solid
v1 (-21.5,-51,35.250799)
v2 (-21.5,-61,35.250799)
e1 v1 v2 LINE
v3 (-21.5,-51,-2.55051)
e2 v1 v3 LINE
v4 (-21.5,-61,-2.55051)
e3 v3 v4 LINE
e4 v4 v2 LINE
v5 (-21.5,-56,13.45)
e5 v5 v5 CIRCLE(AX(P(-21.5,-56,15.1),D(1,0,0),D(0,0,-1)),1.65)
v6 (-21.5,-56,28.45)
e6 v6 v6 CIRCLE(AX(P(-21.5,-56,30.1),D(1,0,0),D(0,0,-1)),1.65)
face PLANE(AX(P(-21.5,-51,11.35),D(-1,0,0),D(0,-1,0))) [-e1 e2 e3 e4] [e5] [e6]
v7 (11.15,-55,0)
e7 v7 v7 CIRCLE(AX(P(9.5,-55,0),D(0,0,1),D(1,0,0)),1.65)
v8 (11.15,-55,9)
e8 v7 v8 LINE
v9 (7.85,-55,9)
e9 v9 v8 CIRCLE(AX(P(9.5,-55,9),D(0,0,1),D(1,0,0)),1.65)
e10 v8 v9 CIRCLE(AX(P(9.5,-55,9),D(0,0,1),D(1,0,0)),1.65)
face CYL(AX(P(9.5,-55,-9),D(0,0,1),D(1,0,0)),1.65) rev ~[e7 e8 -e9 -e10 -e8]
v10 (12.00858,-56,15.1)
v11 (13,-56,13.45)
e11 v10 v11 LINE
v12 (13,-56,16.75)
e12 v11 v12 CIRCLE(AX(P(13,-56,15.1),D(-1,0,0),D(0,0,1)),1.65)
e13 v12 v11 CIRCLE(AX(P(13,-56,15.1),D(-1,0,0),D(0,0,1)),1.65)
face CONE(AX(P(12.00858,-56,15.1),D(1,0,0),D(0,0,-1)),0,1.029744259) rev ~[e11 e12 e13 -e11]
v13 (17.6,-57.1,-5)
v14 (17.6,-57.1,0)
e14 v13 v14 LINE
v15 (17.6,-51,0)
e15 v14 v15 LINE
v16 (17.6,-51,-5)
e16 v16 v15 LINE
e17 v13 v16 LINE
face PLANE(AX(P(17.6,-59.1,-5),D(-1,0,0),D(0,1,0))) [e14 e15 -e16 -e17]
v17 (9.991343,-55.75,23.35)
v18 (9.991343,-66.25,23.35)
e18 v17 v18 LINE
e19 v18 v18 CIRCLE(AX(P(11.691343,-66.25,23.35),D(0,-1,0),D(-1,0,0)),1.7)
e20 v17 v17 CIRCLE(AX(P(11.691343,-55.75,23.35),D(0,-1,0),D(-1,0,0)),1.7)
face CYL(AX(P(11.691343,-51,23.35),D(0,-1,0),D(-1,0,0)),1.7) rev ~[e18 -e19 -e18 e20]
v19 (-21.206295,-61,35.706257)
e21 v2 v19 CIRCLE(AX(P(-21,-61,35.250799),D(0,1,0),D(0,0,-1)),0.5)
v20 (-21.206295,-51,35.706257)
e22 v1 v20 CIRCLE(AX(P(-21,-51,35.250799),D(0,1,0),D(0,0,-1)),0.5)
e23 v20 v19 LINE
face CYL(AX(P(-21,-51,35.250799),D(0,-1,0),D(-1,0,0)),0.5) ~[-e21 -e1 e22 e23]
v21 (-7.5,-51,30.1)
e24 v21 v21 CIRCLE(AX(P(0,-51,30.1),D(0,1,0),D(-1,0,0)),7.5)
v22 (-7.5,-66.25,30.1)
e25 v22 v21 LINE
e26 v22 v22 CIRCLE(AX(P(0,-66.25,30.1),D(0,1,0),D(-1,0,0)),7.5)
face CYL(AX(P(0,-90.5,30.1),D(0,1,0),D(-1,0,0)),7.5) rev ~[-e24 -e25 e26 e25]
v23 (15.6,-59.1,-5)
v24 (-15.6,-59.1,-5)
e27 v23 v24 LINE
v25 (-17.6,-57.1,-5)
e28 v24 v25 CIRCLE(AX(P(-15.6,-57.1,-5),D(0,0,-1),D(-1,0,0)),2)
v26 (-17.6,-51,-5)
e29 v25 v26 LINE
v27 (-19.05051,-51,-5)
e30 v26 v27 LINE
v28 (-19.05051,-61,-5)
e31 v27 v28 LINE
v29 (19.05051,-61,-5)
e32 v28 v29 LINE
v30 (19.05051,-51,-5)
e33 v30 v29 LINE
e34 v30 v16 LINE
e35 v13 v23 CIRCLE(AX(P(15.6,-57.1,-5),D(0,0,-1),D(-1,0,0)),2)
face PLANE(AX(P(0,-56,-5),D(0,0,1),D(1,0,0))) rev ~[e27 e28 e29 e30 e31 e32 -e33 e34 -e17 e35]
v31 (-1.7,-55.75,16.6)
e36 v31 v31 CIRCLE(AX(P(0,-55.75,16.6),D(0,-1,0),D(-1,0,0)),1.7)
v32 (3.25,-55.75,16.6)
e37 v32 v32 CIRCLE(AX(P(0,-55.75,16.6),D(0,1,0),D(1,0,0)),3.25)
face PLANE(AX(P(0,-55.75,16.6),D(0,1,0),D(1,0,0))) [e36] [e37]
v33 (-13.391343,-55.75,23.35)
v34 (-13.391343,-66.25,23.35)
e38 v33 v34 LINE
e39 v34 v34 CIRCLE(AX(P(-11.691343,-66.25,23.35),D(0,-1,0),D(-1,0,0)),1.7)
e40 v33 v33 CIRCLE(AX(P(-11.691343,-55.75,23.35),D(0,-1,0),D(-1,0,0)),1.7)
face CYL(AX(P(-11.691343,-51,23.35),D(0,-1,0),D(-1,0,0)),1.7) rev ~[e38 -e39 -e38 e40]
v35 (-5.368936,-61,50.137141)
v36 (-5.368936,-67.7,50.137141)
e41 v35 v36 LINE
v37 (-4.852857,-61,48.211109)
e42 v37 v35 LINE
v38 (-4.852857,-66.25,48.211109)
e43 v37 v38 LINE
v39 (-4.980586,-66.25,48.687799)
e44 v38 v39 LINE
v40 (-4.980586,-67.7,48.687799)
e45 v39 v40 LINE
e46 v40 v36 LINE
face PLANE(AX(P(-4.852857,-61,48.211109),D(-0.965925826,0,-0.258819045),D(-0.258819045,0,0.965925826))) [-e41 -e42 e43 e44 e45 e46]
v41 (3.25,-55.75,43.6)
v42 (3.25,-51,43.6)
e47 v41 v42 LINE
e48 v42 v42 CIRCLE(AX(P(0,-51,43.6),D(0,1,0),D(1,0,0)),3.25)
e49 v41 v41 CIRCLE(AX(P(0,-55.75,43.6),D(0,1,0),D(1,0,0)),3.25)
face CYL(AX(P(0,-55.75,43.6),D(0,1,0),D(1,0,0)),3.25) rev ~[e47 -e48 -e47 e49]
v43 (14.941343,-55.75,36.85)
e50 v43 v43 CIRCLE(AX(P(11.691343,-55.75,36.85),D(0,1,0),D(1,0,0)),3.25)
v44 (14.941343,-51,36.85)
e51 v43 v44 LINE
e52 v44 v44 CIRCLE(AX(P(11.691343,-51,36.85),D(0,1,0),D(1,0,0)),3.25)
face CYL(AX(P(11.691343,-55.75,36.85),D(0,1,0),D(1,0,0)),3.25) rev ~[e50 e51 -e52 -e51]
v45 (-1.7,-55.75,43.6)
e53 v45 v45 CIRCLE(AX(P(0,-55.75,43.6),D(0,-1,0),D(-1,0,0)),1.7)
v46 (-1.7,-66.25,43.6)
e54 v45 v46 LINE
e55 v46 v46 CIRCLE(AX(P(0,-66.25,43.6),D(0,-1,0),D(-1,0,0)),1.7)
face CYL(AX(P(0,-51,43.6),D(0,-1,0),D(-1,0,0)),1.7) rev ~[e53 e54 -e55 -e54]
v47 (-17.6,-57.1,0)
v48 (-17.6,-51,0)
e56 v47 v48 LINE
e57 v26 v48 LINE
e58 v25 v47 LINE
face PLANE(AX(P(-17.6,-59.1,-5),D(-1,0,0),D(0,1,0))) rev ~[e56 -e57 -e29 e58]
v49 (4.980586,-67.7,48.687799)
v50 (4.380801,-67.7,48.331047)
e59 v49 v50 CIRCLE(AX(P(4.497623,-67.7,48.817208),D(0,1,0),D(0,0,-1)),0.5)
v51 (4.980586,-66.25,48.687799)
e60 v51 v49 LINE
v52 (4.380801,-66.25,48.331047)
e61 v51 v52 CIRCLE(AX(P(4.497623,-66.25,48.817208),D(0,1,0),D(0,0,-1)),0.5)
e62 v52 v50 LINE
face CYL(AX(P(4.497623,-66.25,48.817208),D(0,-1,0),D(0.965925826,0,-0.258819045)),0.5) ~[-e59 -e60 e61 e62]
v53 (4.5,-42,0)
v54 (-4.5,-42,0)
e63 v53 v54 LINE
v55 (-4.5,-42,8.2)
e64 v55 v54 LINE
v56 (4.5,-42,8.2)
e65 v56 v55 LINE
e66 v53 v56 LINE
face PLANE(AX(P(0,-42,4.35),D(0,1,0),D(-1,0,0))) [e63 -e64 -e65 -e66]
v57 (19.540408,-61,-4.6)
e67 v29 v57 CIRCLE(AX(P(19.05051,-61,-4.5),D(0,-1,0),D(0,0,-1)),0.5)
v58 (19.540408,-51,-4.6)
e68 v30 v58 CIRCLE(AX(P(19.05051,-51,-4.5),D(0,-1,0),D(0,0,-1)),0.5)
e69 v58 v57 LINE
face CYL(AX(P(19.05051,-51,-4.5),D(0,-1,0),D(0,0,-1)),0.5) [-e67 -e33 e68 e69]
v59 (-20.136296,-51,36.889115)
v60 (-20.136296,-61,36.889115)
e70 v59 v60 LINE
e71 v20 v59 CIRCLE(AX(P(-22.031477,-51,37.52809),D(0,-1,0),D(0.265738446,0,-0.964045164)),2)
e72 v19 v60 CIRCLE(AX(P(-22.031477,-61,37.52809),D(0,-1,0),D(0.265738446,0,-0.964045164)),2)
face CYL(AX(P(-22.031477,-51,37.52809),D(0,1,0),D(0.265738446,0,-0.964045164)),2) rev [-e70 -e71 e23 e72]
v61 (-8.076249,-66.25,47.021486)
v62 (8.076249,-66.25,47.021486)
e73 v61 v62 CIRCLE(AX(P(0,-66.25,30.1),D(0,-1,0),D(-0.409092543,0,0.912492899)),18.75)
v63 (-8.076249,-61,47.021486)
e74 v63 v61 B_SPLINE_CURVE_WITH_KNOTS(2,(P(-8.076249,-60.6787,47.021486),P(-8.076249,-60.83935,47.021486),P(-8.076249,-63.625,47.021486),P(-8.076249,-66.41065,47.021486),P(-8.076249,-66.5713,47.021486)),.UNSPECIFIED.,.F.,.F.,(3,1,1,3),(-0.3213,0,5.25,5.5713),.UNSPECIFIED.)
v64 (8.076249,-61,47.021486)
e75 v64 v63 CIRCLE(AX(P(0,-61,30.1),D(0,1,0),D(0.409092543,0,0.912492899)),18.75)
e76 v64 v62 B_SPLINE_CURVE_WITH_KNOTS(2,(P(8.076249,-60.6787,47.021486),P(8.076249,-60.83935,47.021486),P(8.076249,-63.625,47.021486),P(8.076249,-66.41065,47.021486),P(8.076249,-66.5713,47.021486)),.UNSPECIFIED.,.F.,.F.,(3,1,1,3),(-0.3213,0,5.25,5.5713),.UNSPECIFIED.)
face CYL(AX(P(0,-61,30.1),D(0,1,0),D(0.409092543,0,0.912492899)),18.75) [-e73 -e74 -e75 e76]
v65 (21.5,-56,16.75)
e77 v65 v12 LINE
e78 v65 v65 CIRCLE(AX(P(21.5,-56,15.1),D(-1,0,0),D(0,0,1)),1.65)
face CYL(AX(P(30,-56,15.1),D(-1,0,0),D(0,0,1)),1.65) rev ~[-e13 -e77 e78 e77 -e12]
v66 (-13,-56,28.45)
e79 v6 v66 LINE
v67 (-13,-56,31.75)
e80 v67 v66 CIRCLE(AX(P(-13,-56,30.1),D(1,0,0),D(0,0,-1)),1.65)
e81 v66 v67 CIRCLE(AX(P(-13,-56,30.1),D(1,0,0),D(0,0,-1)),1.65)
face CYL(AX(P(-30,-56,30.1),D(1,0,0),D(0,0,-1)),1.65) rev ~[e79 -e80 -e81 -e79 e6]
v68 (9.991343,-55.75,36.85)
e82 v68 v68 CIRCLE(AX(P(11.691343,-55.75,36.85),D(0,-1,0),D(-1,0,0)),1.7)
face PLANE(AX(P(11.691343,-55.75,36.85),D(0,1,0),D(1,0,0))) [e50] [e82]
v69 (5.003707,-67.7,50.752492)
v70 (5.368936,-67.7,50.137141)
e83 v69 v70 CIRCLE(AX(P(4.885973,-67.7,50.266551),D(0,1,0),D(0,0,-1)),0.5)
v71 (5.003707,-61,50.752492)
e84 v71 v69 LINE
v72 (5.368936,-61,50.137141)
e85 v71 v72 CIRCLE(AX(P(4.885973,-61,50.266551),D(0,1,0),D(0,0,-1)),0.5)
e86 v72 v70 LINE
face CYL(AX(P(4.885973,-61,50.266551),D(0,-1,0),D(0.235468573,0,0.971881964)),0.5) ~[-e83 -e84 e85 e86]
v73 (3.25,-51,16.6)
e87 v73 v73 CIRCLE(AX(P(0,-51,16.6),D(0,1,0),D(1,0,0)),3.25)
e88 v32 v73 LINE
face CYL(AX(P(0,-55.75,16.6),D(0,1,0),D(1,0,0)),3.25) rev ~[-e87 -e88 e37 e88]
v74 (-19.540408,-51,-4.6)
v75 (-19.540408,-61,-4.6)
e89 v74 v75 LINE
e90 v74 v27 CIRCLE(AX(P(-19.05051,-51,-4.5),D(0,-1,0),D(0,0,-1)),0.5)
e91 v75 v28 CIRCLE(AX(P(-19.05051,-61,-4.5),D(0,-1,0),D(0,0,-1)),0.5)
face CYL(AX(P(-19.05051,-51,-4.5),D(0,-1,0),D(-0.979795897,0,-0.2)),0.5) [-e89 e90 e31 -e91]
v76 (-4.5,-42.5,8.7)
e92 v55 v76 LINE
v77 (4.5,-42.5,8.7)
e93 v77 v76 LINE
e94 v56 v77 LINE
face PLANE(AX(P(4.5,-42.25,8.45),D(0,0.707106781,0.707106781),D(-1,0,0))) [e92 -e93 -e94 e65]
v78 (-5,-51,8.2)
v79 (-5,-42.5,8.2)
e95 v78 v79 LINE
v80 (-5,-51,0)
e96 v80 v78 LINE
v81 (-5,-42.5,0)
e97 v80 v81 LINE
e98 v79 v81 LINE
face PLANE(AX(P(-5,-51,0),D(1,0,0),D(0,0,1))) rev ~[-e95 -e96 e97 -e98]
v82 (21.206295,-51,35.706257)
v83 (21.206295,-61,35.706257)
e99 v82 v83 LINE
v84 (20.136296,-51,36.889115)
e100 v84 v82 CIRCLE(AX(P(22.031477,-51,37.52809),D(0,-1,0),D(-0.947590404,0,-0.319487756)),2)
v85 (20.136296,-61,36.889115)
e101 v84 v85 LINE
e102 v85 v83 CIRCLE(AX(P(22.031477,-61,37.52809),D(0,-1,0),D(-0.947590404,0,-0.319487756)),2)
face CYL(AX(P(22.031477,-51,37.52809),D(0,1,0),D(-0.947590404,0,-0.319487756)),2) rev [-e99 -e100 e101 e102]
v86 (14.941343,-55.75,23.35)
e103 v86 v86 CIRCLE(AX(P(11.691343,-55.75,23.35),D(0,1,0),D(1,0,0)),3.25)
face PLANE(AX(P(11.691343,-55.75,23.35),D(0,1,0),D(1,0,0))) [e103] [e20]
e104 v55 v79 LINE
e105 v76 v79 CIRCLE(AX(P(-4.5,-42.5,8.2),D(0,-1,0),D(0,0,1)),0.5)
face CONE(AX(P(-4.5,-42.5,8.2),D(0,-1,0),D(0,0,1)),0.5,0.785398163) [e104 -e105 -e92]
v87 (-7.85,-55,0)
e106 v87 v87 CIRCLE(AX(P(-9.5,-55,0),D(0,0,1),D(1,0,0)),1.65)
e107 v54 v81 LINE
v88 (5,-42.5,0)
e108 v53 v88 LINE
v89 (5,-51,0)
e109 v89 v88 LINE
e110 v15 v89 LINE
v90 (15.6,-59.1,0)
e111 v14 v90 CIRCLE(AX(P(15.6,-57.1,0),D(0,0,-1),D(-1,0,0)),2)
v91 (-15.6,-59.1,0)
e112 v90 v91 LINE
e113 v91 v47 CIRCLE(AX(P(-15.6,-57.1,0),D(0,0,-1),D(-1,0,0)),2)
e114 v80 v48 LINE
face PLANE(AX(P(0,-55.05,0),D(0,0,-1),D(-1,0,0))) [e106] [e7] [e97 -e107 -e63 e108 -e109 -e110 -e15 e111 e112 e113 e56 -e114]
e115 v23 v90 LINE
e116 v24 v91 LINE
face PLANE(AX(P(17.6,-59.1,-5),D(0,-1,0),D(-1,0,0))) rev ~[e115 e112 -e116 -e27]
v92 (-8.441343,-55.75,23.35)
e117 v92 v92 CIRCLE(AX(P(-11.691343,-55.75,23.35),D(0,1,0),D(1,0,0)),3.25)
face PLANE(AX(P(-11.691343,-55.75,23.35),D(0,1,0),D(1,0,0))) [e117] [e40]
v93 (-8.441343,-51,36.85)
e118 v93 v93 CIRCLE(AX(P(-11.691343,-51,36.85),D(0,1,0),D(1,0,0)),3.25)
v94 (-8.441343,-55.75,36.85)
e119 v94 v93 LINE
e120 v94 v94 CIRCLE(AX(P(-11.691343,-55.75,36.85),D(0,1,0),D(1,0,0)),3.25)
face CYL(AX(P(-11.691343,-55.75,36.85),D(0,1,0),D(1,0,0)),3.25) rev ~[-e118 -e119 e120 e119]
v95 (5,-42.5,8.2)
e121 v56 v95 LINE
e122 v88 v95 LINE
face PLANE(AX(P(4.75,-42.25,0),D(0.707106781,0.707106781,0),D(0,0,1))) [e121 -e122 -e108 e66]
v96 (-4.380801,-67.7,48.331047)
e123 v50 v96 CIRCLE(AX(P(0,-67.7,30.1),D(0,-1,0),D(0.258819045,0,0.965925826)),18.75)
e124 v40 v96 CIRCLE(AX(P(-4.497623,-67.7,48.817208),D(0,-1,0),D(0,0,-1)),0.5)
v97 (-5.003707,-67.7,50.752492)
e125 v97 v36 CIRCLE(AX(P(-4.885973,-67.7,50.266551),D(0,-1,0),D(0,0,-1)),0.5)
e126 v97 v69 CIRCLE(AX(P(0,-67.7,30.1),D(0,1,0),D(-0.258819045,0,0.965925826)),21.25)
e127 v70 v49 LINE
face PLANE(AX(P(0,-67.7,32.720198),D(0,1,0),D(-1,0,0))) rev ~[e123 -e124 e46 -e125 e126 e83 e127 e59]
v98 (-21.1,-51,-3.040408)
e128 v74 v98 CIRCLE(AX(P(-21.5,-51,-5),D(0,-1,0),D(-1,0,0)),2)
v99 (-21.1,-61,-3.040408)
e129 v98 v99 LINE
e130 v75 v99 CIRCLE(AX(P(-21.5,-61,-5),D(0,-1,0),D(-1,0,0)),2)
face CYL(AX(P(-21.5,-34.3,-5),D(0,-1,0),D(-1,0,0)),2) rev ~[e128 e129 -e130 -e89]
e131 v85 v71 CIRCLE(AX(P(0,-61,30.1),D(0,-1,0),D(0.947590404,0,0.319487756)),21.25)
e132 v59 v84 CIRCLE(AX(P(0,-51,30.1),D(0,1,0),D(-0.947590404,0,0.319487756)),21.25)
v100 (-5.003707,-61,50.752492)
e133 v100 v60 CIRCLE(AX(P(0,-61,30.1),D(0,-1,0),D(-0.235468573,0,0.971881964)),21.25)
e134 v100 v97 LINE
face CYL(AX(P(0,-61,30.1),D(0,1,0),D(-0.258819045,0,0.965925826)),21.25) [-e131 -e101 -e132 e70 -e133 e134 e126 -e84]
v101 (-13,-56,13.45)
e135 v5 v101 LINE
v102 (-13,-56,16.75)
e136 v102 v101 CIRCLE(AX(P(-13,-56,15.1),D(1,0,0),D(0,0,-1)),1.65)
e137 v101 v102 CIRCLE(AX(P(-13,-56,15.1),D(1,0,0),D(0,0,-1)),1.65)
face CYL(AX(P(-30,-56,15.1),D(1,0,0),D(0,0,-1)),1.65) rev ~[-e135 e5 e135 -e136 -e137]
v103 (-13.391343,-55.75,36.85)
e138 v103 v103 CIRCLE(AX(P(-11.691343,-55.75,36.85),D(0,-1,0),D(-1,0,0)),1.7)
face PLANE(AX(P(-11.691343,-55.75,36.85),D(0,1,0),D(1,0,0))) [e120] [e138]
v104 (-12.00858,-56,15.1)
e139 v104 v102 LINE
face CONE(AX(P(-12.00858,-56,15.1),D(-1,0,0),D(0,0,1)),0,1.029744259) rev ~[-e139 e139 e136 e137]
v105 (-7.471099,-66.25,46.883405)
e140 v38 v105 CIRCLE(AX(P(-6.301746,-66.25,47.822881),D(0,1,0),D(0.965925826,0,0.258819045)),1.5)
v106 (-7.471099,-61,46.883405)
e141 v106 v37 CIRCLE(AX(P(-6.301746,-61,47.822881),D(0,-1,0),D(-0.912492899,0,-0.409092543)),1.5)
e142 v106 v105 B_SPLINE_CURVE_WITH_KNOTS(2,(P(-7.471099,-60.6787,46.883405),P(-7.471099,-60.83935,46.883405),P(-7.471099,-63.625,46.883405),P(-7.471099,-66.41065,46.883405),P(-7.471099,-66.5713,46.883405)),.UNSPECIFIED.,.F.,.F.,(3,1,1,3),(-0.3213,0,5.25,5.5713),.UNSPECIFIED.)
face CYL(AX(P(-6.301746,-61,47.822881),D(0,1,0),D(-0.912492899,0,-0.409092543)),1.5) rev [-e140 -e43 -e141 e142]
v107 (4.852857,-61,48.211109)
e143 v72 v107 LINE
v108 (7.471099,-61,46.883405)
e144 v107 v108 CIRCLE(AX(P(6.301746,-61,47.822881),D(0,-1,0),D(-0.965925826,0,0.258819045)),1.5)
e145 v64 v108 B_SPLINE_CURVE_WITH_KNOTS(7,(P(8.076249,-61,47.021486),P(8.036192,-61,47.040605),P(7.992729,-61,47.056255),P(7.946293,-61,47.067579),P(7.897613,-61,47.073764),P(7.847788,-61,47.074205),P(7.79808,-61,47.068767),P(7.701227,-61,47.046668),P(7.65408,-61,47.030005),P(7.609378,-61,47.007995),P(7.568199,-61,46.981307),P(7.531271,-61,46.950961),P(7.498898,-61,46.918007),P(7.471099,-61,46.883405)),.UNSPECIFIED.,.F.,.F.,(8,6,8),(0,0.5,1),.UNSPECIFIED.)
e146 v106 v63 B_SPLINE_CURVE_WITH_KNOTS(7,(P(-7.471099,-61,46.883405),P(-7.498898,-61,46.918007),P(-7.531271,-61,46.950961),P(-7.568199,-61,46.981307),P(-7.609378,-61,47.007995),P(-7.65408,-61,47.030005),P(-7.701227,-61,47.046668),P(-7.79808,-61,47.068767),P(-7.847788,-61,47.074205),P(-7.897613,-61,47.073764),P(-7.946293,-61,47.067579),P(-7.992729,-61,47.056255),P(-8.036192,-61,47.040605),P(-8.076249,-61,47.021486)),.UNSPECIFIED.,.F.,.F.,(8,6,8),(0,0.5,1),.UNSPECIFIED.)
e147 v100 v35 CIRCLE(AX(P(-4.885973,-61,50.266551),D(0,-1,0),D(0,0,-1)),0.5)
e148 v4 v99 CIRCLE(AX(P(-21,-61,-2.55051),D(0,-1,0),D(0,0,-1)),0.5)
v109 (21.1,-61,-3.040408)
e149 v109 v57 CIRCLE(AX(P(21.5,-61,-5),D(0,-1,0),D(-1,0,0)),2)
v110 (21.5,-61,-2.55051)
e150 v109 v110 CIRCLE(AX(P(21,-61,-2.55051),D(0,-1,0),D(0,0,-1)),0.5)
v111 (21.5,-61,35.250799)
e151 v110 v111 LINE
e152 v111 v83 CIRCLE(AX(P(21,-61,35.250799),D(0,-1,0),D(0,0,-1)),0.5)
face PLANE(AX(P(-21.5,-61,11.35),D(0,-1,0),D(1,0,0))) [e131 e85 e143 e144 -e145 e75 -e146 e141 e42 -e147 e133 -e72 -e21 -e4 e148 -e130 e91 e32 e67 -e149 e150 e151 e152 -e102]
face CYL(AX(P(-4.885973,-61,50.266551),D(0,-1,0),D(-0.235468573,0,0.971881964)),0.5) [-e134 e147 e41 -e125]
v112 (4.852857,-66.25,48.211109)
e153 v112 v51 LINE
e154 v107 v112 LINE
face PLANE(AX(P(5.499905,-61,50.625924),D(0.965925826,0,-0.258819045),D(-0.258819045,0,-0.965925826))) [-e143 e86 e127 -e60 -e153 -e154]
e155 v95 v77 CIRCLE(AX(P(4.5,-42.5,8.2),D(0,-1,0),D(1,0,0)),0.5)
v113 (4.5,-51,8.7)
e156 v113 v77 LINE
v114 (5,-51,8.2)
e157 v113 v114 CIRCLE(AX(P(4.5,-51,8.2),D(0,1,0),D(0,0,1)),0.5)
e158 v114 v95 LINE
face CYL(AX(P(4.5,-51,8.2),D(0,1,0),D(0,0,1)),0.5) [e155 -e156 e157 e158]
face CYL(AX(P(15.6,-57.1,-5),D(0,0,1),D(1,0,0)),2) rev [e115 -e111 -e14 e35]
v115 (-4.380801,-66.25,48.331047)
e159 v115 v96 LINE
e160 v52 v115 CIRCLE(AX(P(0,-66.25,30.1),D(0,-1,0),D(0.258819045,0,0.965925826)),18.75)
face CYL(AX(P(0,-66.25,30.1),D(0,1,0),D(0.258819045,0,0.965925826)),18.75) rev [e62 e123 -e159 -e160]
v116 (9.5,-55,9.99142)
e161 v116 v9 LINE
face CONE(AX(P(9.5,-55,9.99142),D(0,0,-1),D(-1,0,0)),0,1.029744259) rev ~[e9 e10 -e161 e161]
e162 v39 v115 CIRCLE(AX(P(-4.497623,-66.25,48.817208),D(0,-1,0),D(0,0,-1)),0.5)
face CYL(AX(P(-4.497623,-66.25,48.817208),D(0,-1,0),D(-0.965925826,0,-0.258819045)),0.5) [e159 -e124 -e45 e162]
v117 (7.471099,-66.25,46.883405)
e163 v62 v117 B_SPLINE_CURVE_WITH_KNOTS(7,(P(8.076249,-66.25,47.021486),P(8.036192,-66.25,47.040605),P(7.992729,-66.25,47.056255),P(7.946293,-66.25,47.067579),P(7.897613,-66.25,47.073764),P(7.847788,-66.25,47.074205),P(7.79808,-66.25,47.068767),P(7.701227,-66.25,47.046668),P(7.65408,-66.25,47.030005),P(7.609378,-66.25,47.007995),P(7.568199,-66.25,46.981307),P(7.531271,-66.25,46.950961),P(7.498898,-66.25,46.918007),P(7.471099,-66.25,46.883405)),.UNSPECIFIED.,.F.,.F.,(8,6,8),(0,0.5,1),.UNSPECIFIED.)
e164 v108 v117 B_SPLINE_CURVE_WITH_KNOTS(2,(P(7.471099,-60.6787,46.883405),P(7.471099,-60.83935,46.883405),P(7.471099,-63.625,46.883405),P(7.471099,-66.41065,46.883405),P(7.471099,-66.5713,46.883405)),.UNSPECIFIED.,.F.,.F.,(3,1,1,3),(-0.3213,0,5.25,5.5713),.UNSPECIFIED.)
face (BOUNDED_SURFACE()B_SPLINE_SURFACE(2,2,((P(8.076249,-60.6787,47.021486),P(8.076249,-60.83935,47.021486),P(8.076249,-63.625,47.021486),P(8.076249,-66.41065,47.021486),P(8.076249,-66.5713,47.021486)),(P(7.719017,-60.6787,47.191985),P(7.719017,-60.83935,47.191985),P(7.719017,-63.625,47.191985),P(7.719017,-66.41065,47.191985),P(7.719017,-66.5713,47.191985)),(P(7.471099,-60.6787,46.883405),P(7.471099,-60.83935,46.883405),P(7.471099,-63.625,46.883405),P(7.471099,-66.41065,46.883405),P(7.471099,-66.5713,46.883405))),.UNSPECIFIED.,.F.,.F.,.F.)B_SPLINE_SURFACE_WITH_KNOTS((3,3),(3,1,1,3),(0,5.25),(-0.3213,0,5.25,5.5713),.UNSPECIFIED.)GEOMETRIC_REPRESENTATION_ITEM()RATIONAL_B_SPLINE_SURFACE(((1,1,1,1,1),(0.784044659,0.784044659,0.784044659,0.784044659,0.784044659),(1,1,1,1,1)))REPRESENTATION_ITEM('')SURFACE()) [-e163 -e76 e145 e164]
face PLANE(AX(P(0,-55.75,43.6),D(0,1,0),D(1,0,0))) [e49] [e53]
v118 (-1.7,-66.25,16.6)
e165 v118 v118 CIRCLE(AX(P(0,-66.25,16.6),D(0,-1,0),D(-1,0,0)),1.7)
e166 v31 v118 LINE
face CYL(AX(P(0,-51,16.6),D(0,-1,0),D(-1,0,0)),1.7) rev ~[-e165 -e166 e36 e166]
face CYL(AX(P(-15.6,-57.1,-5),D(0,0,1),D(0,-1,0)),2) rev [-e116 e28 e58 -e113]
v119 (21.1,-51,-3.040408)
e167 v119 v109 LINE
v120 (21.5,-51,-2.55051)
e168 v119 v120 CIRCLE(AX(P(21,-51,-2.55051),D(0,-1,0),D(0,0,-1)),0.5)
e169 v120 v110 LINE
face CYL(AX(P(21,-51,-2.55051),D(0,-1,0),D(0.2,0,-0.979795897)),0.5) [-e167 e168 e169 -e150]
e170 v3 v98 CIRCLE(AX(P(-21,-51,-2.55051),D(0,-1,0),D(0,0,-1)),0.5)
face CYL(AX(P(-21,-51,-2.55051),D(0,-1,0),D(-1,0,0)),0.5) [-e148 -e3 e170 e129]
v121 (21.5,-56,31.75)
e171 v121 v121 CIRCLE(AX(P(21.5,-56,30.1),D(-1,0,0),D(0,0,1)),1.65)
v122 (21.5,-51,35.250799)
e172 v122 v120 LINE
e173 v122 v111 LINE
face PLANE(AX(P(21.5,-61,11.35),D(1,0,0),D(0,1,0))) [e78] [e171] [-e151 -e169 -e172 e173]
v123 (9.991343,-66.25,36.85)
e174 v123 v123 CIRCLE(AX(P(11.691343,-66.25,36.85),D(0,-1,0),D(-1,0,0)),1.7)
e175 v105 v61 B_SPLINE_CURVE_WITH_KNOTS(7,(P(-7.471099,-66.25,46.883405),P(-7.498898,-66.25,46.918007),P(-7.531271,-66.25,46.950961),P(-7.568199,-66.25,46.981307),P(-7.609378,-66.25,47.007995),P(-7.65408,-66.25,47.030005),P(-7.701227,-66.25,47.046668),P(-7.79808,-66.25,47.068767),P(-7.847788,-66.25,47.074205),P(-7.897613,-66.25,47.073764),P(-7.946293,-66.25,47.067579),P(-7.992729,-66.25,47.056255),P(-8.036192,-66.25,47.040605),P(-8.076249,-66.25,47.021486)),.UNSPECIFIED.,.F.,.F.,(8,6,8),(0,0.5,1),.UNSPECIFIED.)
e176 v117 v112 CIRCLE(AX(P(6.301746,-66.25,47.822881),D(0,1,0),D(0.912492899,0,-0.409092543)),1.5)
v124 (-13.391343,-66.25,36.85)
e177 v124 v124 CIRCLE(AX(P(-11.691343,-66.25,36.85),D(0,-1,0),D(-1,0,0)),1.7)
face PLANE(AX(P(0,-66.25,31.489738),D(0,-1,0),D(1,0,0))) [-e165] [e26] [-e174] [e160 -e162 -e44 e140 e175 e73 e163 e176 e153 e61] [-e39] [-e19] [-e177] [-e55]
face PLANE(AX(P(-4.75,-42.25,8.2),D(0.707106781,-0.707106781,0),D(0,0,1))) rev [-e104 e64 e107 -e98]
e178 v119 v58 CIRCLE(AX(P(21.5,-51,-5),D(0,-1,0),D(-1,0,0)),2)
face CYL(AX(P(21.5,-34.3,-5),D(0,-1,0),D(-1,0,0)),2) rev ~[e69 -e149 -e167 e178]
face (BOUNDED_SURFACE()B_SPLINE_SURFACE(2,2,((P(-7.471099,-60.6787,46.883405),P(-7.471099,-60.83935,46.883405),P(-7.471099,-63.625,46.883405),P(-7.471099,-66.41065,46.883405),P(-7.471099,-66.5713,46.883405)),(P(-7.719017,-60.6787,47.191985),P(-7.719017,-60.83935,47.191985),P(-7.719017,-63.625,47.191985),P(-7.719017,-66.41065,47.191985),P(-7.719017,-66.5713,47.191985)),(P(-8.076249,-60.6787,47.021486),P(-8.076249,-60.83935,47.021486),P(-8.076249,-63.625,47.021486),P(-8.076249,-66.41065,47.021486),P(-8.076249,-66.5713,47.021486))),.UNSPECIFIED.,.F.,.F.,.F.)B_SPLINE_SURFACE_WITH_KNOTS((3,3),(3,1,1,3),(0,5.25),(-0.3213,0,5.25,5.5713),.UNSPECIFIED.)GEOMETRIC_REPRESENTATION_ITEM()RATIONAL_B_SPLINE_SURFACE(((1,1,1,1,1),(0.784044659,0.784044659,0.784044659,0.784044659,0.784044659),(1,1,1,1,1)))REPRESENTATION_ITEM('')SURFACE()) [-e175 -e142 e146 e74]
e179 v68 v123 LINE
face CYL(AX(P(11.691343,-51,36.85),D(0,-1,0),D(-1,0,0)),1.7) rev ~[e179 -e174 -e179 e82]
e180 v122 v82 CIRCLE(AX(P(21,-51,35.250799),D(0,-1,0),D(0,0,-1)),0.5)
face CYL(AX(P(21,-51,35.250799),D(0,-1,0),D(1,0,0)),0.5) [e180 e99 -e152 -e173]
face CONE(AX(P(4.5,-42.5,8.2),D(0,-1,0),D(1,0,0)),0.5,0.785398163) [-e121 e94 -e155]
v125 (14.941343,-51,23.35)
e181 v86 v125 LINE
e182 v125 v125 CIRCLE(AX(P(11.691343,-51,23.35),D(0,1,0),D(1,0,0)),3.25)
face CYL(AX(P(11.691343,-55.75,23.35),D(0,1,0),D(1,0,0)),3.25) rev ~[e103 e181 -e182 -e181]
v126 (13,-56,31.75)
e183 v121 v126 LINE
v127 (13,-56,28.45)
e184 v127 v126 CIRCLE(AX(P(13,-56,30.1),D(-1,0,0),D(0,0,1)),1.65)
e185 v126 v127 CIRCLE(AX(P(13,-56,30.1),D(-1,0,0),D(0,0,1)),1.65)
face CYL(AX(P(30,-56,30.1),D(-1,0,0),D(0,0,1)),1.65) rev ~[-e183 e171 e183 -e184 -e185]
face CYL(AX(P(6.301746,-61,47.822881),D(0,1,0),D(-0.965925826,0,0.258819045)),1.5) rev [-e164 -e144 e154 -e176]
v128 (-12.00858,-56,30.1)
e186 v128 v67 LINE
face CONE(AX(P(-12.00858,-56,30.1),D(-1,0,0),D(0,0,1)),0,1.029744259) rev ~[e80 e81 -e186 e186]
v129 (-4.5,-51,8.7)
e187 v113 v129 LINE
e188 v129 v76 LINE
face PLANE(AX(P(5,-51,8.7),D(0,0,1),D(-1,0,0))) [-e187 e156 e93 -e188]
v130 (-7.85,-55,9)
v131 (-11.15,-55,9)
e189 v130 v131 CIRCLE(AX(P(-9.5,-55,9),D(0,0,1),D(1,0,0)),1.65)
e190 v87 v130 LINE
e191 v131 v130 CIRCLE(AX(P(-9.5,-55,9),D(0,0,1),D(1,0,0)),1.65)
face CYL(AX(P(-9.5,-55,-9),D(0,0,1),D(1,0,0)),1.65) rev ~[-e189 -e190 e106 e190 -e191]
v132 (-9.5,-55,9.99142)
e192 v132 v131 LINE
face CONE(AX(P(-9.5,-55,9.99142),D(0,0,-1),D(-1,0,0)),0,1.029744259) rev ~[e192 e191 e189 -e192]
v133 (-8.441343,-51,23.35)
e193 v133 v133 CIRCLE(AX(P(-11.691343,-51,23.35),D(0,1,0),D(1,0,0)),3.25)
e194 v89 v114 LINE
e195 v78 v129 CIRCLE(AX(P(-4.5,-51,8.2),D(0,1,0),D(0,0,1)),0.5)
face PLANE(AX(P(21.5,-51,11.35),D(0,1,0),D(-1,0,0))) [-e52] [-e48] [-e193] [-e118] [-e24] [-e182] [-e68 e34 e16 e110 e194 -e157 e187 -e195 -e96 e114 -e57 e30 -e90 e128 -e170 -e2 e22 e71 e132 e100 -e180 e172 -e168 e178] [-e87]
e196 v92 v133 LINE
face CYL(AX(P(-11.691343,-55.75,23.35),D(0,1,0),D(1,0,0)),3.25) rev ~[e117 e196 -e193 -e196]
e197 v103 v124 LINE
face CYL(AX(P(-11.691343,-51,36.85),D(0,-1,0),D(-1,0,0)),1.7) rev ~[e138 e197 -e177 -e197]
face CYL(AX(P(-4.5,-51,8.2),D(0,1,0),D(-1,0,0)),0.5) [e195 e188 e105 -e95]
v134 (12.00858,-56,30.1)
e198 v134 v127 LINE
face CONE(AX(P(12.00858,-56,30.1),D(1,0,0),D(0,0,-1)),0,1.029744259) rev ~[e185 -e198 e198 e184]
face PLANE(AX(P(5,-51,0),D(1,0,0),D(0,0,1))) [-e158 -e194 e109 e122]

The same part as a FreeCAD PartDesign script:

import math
import FreeCAD as App
import Part
import Sketcher

V = App.Vector
Q = App.Units.Quantity


def edges_at(feature, points):
    """Names of the edges that pass closest to the given points."""
    edges = feature.Shape.Edges
    near = lambda p: min(range(len(edges)), key=lambda i: edges[i].distToShape(Part.Vertex(*p))[0])
    return sorted({f"Edge{near(p) + 1}" for p in points})


def add_polygon(sketch, points):
    """Adds a closed chain of lines whose ends are joined by coincident constraints."""
    first, n = sketch.GeometryCount, len(points)
    for a, b in zip(points, points[1:] + points[:1]):
        sketch.addGeometry(Part.LineSegment(App.Vector(*a, 0), App.Vector(*b, 0)), False)
    for i in range(n):
        sketch.addConstraint(Sketcher.Constraint("Coincident", first + i, 2, first + (i + 1) % n, 1))

doc = App.newDocument("Part")
body = doc.addObject("PartDesign::Body", "Body")

# Sketch on XZ plane
sketch1 = body.newObject("Sketcher::SketchObject", "Sketch")
sketch1.AttachmentSupport = (doc.getObject("XZ_Plane"), [""])
sketch1.MapMode = "FlatFace"
sketch1.AttachmentOffset = App.Placement(V(0, 0, 51), App.Rotation())
sketch1.addGeometry(Part.LineSegment(V(21.5, 35.6, 0), V(-21.5, 35.6, 0)), False)
sketch1.addGeometry(Part.ArcOfCircle(Part.Circle(V(-22, 37.5, 0), V(0, 0, 1), 2), math.radians(-75), math.radians(-19)), False)
sketch1.addGeometry(Part.ArcOfCircle(Part.Circle(V(0, 30.1, 0), V(0, 0, 1), 21.2), math.radians(19), math.radians(161)), False)
sketch1.addGeometry(Part.ArcOfCircle(Part.Circle(V(22, 37.5, 0), V(0, 0, 1), 2), math.radians(-161), math.radians(-105)), False)
sketch1.addConstraint(Sketcher.Constraint("Coincident", 0, 2, 1, 1))
sketch1.addConstraint(Sketcher.Constraint("Tangent", 1, 2, 2, 2))
sketch1.addConstraint(Sketcher.Constraint("Tangent", 2, 1, 3, 1))
sketch1.addConstraint(Sketcher.Constraint("Coincident", 3, 2, 0, 1))
sketch1.addConstraint(Sketcher.Constraint("Horizontal", 0))
sketch1.addConstraint(Sketcher.Constraint("Equal", 1, 3))
sketch1.addConstraint(Sketcher.Constraint("Symmetric", 1, 3, 3, 3, -2))
sketch1.addConstraint(Sketcher.Constraint("Radius", 1, Q("2 mm")))
sketch1.addConstraint(Sketcher.Constraint("DistanceX", 0, 2, 0, 1, Q("43 mm")))
sketch1.addConstraint(Sketcher.Constraint("Radius", 2, Q("21.25 mm")))
sketch1.addConstraint(Sketcher.Constraint("DistanceY", -1, 1, 2, 3, Q("30.1 mm")))
sketch1.addConstraint(Sketcher.Constraint("DistanceY", -1, 1, 0, 2, Q("35.6 mm")))
pad1 = body.newObject("PartDesign::Pad", "Pad")
pad1.Profile = sketch1
pad1.Length = 10

# Sketch on XY plane
sketch2 = body.newObject("Sketcher::SketchObject", "Sketch001")
sketch2.AttachmentSupport = (doc.getObject("XY_Plane"), [""])
sketch2.MapMode = "FlatFace"
sketch2.AttachmentOffset = App.Placement(V(0, 0, 35.6), App.Rotation())
add_polygon(sketch2, [(22, -51), (22, -61), (-22, -61), (-22, -51)])  # lines 0-3
sketch2.addConstraint(Sketcher.Constraint("Vertical", 0))
sketch2.addConstraint(Sketcher.Constraint("Horizontal", 1))
sketch2.addConstraint(Sketcher.Constraint("Vertical", 2))
sketch2.addConstraint(Sketcher.Constraint("Horizontal", 3))
sketch2.addConstraint(Sketcher.Constraint("DistanceX", 1, 2, 1, 1, Q("43 mm")))
sketch2.addConstraint(Sketcher.Constraint("DistanceY", 0, 2, 0, 1, Q("10 mm")))
sketch2.addConstraint(Sketcher.Constraint("DistanceY", 0, 2, -1, 1, Q("61 mm")))
sketch2.addConstraint(Sketcher.Constraint("DistanceX", -1, 1, 0, 2, Q("21.5 mm")))
pad2 = body.newObject("PartDesign::Pad", "Pad001")
pad2.Profile = sketch2
pad2.Length = 24.25
pad2.Reversed = True

# Sketch on XZ plane
sketch3 = body.newObject("Sketcher::SketchObject", "Sketch002")
sketch3.AttachmentSupport = (doc.getObject("XZ_Plane"), [""])
sketch3.MapMode = "FlatFace"
sketch3.AttachmentOffset = App.Placement(V(0, 0, 61), App.Rotation())
sketch3.addGeometry(Part.LineSegment(V(-5.5, 50.6, 0), V(-4.9, 48.2, 0)), False)
sketch3.addGeometry(Part.ArcOfCircle(Part.Circle(V(-6.3, 47.8, 0), V(0, 0, 1), 1.5), math.radians(-156), math.radians(15)), False)
sketch3.addGeometry(Part.ArcOfCircle(Part.Circle(V(0, 30.1, 0), V(0, 0, 1), 18.8), math.radians(114), math.radians(426)), False)
sketch3.addGeometry(Part.ArcOfCircle(Part.Circle(V(6.3, 47.8, 0), V(0, 0, 1), 1.5), math.radians(165), math.radians(336)), False)
sketch3.addGeometry(Part.LineSegment(V(4.9, 48.2, 0), V(5.5, 50.6, 0)), False)
sketch3.addGeometry(Part.ArcOfCircle(Part.Circle(V(0, 30.1, 0), V(0, 0, 1), 21.2), math.radians(75), math.radians(105)), False)
sketch3.addConstraint(Sketcher.Constraint("Tangent", 0, 2, 1, 2))
sketch3.addConstraint(Sketcher.Constraint("Coincident", 1, 1, 2, 1))
sketch3.addConstraint(Sketcher.Constraint("Coincident", 2, 2, 3, 2))
sketch3.addConstraint(Sketcher.Constraint("Tangent", 3, 1, 4, 1))
sketch3.addConstraint(Sketcher.Constraint("Coincident", 4, 2, 5, 1))
sketch3.addConstraint(Sketcher.Constraint("Coincident", 5, 2, 0, 1))
sketch3.addConstraint(Sketcher.Constraint("Coincident", 5, 3, 2, 3))
sketch3.addConstraint(Sketcher.Constraint("Equal", 1, 3))
sketch3.addConstraint(Sketcher.Constraint("Symmetric", 1, 3, 3, 3, -2))
sketch3.addConstraint(Sketcher.Constraint("Symmetric", 4, 2, 5, 2, -2))
sketch3.addConstraint(Sketcher.Constraint("Radius", 1, Q("1.5 mm")))
sketch3.addConstraint(Sketcher.Constraint("Angle", 0, Q("-75 deg")))
sketch3.addConstraint(Sketcher.Constraint("Radius", 2, Q("18.75 mm")))
sketch3.addConstraint(Sketcher.Constraint("Radius", 5, Q("21.25 mm")))
sketch3.addConstraint(Sketcher.Constraint("Distance", 0, Q("2.5 mm")))
sketch3.addConstraint(Sketcher.Constraint("DistanceY", -1, 1, 2, 3, Q("30.1 mm")))
sketch3.addConstraint(Sketcher.Constraint("DistanceY", -1, 1, 1, 3, Q("47.822881 mm")))
pad3 = body.newObject("PartDesign::Pad", "Pad002")
pad3.Profile = sketch3
pad3.Length = 6.7

# Sketch on XZ plane
sketch4 = body.newObject("Sketcher::SketchObject", "Sketch003")
sketch4.AttachmentSupport = (doc.getObject("XZ_Plane"), [""])
sketch4.MapMode = "FlatFace"
sketch4.AttachmentOffset = App.Placement(V(0, 0, 66.25), App.Rotation())
sketch4.addGeometry(Part.ArcOfCircle(Part.Circle(V(6.3, 47.8, 0), V(0, 0, 1), 1.5), math.radians(165), math.radians(336)), False)
sketch4.addGeometry(Part.ArcOfCircle(Part.Circle(V(0, 30.1, 0), V(0, 0, 1), 18.8), math.radians(75), math.radians(105)), False)
sketch4.addGeometry(Part.ArcOfCircle(Part.Circle(V(-6.3, 47.8, 0), V(0, 0, 1), 1.5), math.radians(-156), math.radians(15)), False)
sketch4.addGeometry(Part.ArcOfCircle(Part.Circle(V(0, 30.1, 0), V(0, 0, 1), 18.8), math.radians(114), math.radians(426)), False)
sketch4.addConstraint(Sketcher.Constraint("Coincident", 0, 1, 1, 1))
sketch4.addConstraint(Sketcher.Constraint("Coincident", 1, 2, 2, 2))
sketch4.addConstraint(Sketcher.Constraint("Coincident", 2, 1, 3, 1))
sketch4.addConstraint(Sketcher.Constraint("Coincident", 3, 2, 0, 2))
sketch4.addConstraint(Sketcher.Constraint("Coincident", 3, 3, 1, 3))
sketch4.addConstraint(Sketcher.Constraint("Equal", 0, 2))
sketch4.addConstraint(Sketcher.Constraint("Equal", 1, 3))
sketch4.addConstraint(Sketcher.Constraint("Symmetric", 0, 3, 2, 3, -2))
sketch4.addConstraint(Sketcher.Constraint("PointOnObject", 1, 3, -2))
sketch4.addConstraint(Sketcher.Constraint("Radius", 0, Q("1.5 mm")))
sketch4.addConstraint(Sketcher.Constraint("Radius", 1, Q("18.75 mm")))
sketch4.addConstraint(Sketcher.Constraint("DistanceY", -1, 1, 1, 3, Q("30.1 mm")))
sketch4.addConstraint(Sketcher.Constraint("DistanceY", -1, 1, 0, 3, Q("47.822881 mm")))
sketch4.addConstraint(Sketcher.Constraint("DistanceY", -1, 1, 0, 1, Q("48.211109 mm")))
pocket1 = body.newObject("PartDesign::Pocket", "Pocket")
pocket1.Profile = sketch4
pocket1.Length = 1.45
pocket1.Reversed = True

# Sketch on XY plane
sketch5 = body.newObject("Sketcher::SketchObject", "Sketch004")
sketch5.AttachmentSupport = (doc.getObject("XY_Plane"), [""])
sketch5.MapMode = "FlatFace"
sketch5.AttachmentOffset = App.Placement(V(0, 0, 11.35), App.Rotation())
add_polygon(sketch5, [(-22, -61), (-22, -51), (22, -51), (22, -61)])  # lines 0-3
sketch5.addConstraint(Sketcher.Constraint("Vertical", 0))
sketch5.addConstraint(Sketcher.Constraint("Horizontal", 1))
sketch5.addConstraint(Sketcher.Constraint("Vertical", 2))
sketch5.addConstraint(Sketcher.Constraint("Horizontal", 3))
sketch5.addConstraint(Sketcher.Constraint("DistanceX", 1, 1, 1, 2, Q("43 mm")))
sketch5.addConstraint(Sketcher.Constraint("DistanceY", 0, 1, 0, 2, Q("10 mm")))
sketch5.addConstraint(Sketcher.Constraint("DistanceY", 0, 2, -1, 1, Q("51 mm")))
sketch5.addConstraint(Sketcher.Constraint("DistanceX", 0, 2, -1, 1, Q("21.5 mm")))
pad4 = body.newObject("PartDesign::Pad", "Pad003")
pad4.Profile = sketch5
pad4.Length = 16.35
pad4.Reversed = True

# Sketch on XY plane
sketch6 = body.newObject("Sketcher::SketchObject", "Sketch005")
sketch6.AttachmentSupport = (doc.getObject("XY_Plane"), [""])
sketch6.MapMode = "FlatFace"
sketch6.AttachmentOffset = App.Placement(V(0, 0, -5), App.Rotation())
add_polygon(sketch6, [(18, -51), (18, -59), (-18, -59), (-18, -51)])  # lines 0-3
sketch6.addConstraint(Sketcher.Constraint("Vertical", 0))
sketch6.addConstraint(Sketcher.Constraint("Horizontal", 1))
sketch6.addConstraint(Sketcher.Constraint("Vertical", 2))
sketch6.addConstraint(Sketcher.Constraint("Horizontal", 3))
sketch6.addConstraint(Sketcher.Constraint("DistanceX", 1, 2, 1, 1, Q("35.2 mm")))
sketch6.addConstraint(Sketcher.Constraint("DistanceY", 0, 2, 0, 1, Q("8.1 mm")))
sketch6.addConstraint(Sketcher.Constraint("DistanceY", 2, 2, -1, 1, Q("51 mm")))
sketch6.addConstraint(Sketcher.Constraint("DistanceX", -1, 1, 0, 2, Q("17.6 mm")))
pocket2 = body.newObject("PartDesign::Pocket", "Pocket001")
pocket2.Profile = sketch6
pocket2.Length = 5
pocket2.Reversed = True

# Sketch on XZ plane
sketch7 = body.newObject("Sketcher::SketchObject", "Sketch006")
sketch7.AttachmentSupport = (doc.getObject("XZ_Plane"), [""])
sketch7.MapMode = "FlatFace"
sketch7.AttachmentOffset = App.Placement(V(0, 0, 51), App.Rotation())
add_polygon(sketch7, [(5, 9), (5, 0), (-5, 0), (-5, 9)])  # lines 0-3
sketch7.addConstraint(Sketcher.Constraint("Vertical", 0))
sketch7.addConstraint(Sketcher.Constraint("Horizontal", 1))
sketch7.addConstraint(Sketcher.Constraint("Vertical", 2))
sketch7.addConstraint(Sketcher.Constraint("Horizontal", 3))
sketch7.addConstraint(Sketcher.Constraint("Symmetric", 0, 2, 1, 2, -1, 1))
sketch7.addConstraint(Sketcher.Constraint("DistanceX", 1, 2, 1, 1, Q("10 mm")))
sketch7.addConstraint(Sketcher.Constraint("DistanceY", 0, 2, 0, 1, Q("8.7 mm")))
pad5 = body.newObject("PartDesign::Pad", "Pad004")
pad5.Profile = sketch7
pad5.Length = 9
pad5.Reversed = True

# Sketch on YZ plane
sketch8 = body.newObject("Sketcher::SketchObject", "Sketch007")
sketch8.AttachmentSupport = (doc.getObject("YZ_Plane"), [""])
sketch8.MapMode = "FlatFace"
sketch8.AttachmentOffset = App.Placement(V(0, 0, 21.5), App.Rotation())
sketch8.addGeometry(Part.Circle(V(-56, 15.1, 0), V(0, 0, 1), 1.6), False)
sketch8.addGeometry(Part.Circle(V(-56, 30.1, 0), V(0, 0, 1), 1.6), False)
sketch8.addConstraint(Sketcher.Constraint("Equal", 0, 1))
sketch8.addConstraint(Sketcher.Constraint("Vertical", 0, 3, 1, 3))
sketch8.addConstraint(Sketcher.Constraint("Diameter", 0, Q("3.3 mm")))
sketch8.addConstraint(Sketcher.Constraint("DistanceX", 0, 3, -1, 1, Q("56 mm")))
sketch8.addConstraint(Sketcher.Constraint("DistanceY", 0, 3, 1, 3, Q("15 mm")))
sketch8.addConstraint(Sketcher.Constraint("DistanceY", -1, 1, 0, 3, Q("15.1 mm")))
doc.recompute()
hole = body.newObject("PartDesign::Hole", "Hole")
hole.Profile = sketch8
hole.ThreadType = "None"
hole.Diameter = 3.3
hole.DepthType = "Dimension"
hole.Depth = 8.5
hole.DrillPoint = "Angled"
hole.DrillPointAngle = 118

# Sketch on YZ plane
sketch9 = body.newObject("Sketcher::SketchObject", "Sketch008")
sketch9.AttachmentSupport = (doc.getObject("YZ_Plane"), [""])
sketch9.MapMode = "FlatFace"
sketch9.AttachmentOffset = App.Placement(V(0, 0, -21.5), App.Rotation())
sketch9.addGeometry(Part.Circle(V(-56, 15.1, 0), V(0, 0, 1), 1.6), False)
sketch9.addGeometry(Part.Circle(V(-56, 30.1, 0), V(0, 0, 1), 1.6), False)
sketch9.addConstraint(Sketcher.Constraint("Equal", 0, 1))
sketch9.addConstraint(Sketcher.Constraint("Vertical", 0, 3, 1, 3))
sketch9.addConstraint(Sketcher.Constraint("Diameter", 0, Q("3.3 mm")))
sketch9.addConstraint(Sketcher.Constraint("DistanceX", 0, 3, -1, 1, Q("56 mm")))
sketch9.addConstraint(Sketcher.Constraint("DistanceY", 0, 3, 1, 3, Q("15 mm")))
sketch9.addConstraint(Sketcher.Constraint("DistanceY", -1, 1, 0, 3, Q("15.1 mm")))
doc.recompute()
hole2 = body.newObject("PartDesign::Hole", "Hole001")
hole2.Profile = sketch9
hole2.ThreadType = "None"
hole2.Diameter = 3.3
hole2.DepthType = "Dimension"
hole2.Depth = 8.5
hole2.DrillPoint = "Angled"
hole2.DrillPointAngle = 118
hole2.Reversed = True

# Sketch on XY plane
sketch10 = body.newObject("Sketcher::SketchObject", "Sketch009")
sketch10.AttachmentSupport = (doc.getObject("XY_Plane"), [""])
sketch10.MapMode = "FlatFace"
sketch10.addGeometry(Part.Circle(V(9.5, -55, 0), V(0, 0, 1), 1.6), False)
sketch10.addGeometry(Part.Circle(V(-9.5, -55, 0), V(0, 0, 1), 1.6), False)
sketch10.addConstraint(Sketcher.Constraint("Equal", 0, 1))
sketch10.addConstraint(Sketcher.Constraint("Symmetric", 0, 3, 1, 3, -2))
sketch10.addConstraint(Sketcher.Constraint("Diameter", 0, Q("3.3 mm")))
sketch10.addConstraint(Sketcher.Constraint("DistanceY", 0, 3, -1, 1, Q("55 mm")))
sketch10.addConstraint(Sketcher.Constraint("DistanceX", 1, 3, 0, 3, Q("19 mm")))
doc.recompute()
hole3 = body.newObject("PartDesign::Hole", "Hole002")
hole3.Profile = sketch10
hole3.ThreadType = "None"
hole3.Diameter = 3.3
hole3.DepthType = "Dimension"
hole3.Depth = 9
hole3.DrillPoint = "Angled"
hole3.DrillPointAngle = 118
hole3.Reversed = True

# Sketch on XZ plane
sketch11 = body.newObject("Sketcher::SketchObject", "Sketch010")
sketch11.AttachmentSupport = (doc.getObject("XZ_Plane"), [""])
sketch11.MapMode = "FlatFace"
sketch11.AttachmentOffset = App.Placement(V(0, 0, 66.25), App.Rotation())
sketch11.addGeometry(Part.Circle(V(0, 30, 0), V(0, 0, 1), 8), False)
sketch11.addConstraint(Sketcher.Constraint("PointOnObject", 0, 3, -2))
sketch11.addConstraint(Sketcher.Constraint("Diameter", 0, Q("15 mm")))
sketch11.addConstraint(Sketcher.Constraint("DistanceY", -1, 1, 0, 3, Q("30.1 mm")))
doc.recompute()
hole4 = body.newObject("PartDesign::Hole", "Hole003")
hole4.Profile = sketch11
hole4.ThreadType = "None"
hole4.Diameter = 15
hole4.DepthType = "Dimension"
hole4.Depth = 24.25
hole4.DrillPoint = "Flat"

# Sketch on XZ plane
sketch12 = body.newObject("Sketcher::SketchObject", "Sketch011")
sketch12.AttachmentSupport = (doc.getObject("XZ_Plane"), [""])
sketch12.MapMode = "FlatFace"
sketch12.AttachmentOffset = App.Placement(V(0, 0, 51), App.Rotation())
sketch12.addGeometry(Part.Circle(V(0, 43.6, 0), V(0, 0, 1), 1.7), False)
sketch12.addGeometry(Part.Circle(V(-11.7, 36.9, 0), V(0, 0, 1), 1.7), False)
sketch12.addGeometry(Part.Circle(V(-11.7, 23.4, 0), V(0, 0, 1), 1.7), False)
sketch12.addGeometry(Part.Circle(V(0, 16.6, 0), V(0, 0, 1), 1.7), False)
sketch12.addGeometry(Part.Circle(V(11.7, 23.4, 0), V(0, 0, 1), 1.7), False)
sketch12.addGeometry(Part.Circle(V(11.7, 36.9, 0), V(0, 0, 1), 1.7), False)
sketch12.addConstraint(Sketcher.Constraint("Equal", 0, 1))
sketch12.addConstraint(Sketcher.Constraint("Equal", 1, 2))
sketch12.addConstraint(Sketcher.Constraint("Equal", 2, 3))
sketch12.addConstraint(Sketcher.Constraint("Equal", 3, 4))
sketch12.addConstraint(Sketcher.Constraint("Equal", 4, 5))
sketch12.addConstraint(Sketcher.Constraint("Symmetric", 2, 3, 4, 3, -2))
sketch12.addConstraint(Sketcher.Constraint("Symmetric", 1, 3, 5, 3, -2))
sketch12.addConstraint(Sketcher.Constraint("PointOnObject", 0, 3, -2))
sketch12.addConstraint(Sketcher.Constraint("PointOnObject", 3, 3, -2))
sketch12.addConstraint(Sketcher.Constraint("Vertical", 1, 3, 2, 3))
sketch12.addConstraint(Sketcher.Constraint("Diameter", 0, Q("3.4 mm")))
sketch12.addConstraint(Sketcher.Constraint("DistanceY", 3, 3, 0, 3, Q("27 mm")))
sketch12.addConstraint(Sketcher.Constraint("DistanceY", -1, 1, 0, 3, Q("43.6 mm")))
sketch12.addConstraint(Sketcher.Constraint("DistanceY", 2, 3, 1, 3, Q("13.5 mm")))
sketch12.addConstraint(Sketcher.Constraint("DistanceY", -1, 1, 1, 3, Q("36.85 mm")))
sketch12.addConstraint(Sketcher.Constraint("DistanceX", 1, 3, -1, 1, Q("11.691343 mm")))
doc.recompute()
hole5 = body.newObject("PartDesign::Hole", "Hole004")
hole5.Profile = sketch12
hole5.ThreadType = "None"
hole5.Diameter = 3.4
hole5.DepthType = "Dimension"
hole5.Depth = 16.7
hole5.DrillPoint = "Flat"
hole5.HoleCutType = "Counterbore"
hole5.HoleCutDiameter = 6.5
hole5.HoleCutDepth = 4.75
hole5.Reversed = True

# Sketch on XZ plane
sketch13 = body.newObject("Sketcher::SketchObject", "Sketch012")
sketch13.AttachmentSupport = (doc.getObject("XZ_Plane"), [""])
sketch13.MapMode = "FlatFace"
sketch13.AttachmentOffset = App.Placement(V(0, 0, 51), App.Rotation())
sketch13.addGeometry(Part.Circle(V(21.5, -5, 0), V(0, 0, 1), 2), False)
sketch13.addGeometry(Part.Circle(V(-21.5, -5, 0), V(0, 0, 1), 2), False)
sketch13.addConstraint(Sketcher.Constraint("Equal", 0, 1))
sketch13.addConstraint(Sketcher.Constraint("Symmetric", 0, 3, 1, 3, -2))
sketch13.addConstraint(Sketcher.Constraint("Diameter", 0, Q("4 mm")))
sketch13.addConstraint(Sketcher.Constraint("DistanceY", 0, 3, -1, 1, Q("5 mm")))
sketch13.addConstraint(Sketcher.Constraint("DistanceX", 1, 3, 0, 3, Q("43 mm")))
doc.recompute()
hole6 = body.newObject("PartDesign::Hole", "Hole005")
hole6.Profile = sketch13
hole6.ThreadType = "None"
hole6.Diameter = 4
hole6.DepthType = "Dimension"
hole6.Depth = 16.7
hole6.DrillPoint = "Flat"
hole6.Reversed = True
doc.recompute()

fillet = body.newObject("PartDesign::Fillet", "Fillet")
fillet.Base = (hole6, edges_at(hole6, [
    (-21.5, -56, -3),
    (-19.5, -56, -5),
    (19.5, -56, -5),
    (21.5, -56, -3),
    (-4.853, -66.975, 48.211),
    (4.853, -66.975, 48.211),
    (5.5, -64.35, 50.626),
    (-5.5, -64.35, 50.626),
    (7.67, -63.625, 47.209),
    (-7.67, -63.625, 47.209),
    (-21.5, -56, 35.6),
    (21.5, -56, 35.6),
    (-5, -46.5, 8.7),
    (5, -46.5, 8.7),
]))
fillet.Radius = 0.5
doc.recompute()

chamfer = body.newObject("PartDesign::Chamfer", "Chamfer")
chamfer.Base = (fillet, edges_at(fillet, [
    (5, -42, 4.1),
    (0, -42, 8.7),
    (-4.854, -42, 8.554),
    (4.854, -42, 8.554),
    (-5, -42, 4.1),
]))
chamfer.Size = 0.5
doc.recompute()

fillet2 = body.newObject("PartDesign::Fillet", "Fillet001")
fillet2.Base = (chamfer, edges_at(chamfer, [(-17.6, -59.1, -2.5), (17.6, -59.1, -2.5)]))
fillet2.Radius = 2

doc.recompute()
